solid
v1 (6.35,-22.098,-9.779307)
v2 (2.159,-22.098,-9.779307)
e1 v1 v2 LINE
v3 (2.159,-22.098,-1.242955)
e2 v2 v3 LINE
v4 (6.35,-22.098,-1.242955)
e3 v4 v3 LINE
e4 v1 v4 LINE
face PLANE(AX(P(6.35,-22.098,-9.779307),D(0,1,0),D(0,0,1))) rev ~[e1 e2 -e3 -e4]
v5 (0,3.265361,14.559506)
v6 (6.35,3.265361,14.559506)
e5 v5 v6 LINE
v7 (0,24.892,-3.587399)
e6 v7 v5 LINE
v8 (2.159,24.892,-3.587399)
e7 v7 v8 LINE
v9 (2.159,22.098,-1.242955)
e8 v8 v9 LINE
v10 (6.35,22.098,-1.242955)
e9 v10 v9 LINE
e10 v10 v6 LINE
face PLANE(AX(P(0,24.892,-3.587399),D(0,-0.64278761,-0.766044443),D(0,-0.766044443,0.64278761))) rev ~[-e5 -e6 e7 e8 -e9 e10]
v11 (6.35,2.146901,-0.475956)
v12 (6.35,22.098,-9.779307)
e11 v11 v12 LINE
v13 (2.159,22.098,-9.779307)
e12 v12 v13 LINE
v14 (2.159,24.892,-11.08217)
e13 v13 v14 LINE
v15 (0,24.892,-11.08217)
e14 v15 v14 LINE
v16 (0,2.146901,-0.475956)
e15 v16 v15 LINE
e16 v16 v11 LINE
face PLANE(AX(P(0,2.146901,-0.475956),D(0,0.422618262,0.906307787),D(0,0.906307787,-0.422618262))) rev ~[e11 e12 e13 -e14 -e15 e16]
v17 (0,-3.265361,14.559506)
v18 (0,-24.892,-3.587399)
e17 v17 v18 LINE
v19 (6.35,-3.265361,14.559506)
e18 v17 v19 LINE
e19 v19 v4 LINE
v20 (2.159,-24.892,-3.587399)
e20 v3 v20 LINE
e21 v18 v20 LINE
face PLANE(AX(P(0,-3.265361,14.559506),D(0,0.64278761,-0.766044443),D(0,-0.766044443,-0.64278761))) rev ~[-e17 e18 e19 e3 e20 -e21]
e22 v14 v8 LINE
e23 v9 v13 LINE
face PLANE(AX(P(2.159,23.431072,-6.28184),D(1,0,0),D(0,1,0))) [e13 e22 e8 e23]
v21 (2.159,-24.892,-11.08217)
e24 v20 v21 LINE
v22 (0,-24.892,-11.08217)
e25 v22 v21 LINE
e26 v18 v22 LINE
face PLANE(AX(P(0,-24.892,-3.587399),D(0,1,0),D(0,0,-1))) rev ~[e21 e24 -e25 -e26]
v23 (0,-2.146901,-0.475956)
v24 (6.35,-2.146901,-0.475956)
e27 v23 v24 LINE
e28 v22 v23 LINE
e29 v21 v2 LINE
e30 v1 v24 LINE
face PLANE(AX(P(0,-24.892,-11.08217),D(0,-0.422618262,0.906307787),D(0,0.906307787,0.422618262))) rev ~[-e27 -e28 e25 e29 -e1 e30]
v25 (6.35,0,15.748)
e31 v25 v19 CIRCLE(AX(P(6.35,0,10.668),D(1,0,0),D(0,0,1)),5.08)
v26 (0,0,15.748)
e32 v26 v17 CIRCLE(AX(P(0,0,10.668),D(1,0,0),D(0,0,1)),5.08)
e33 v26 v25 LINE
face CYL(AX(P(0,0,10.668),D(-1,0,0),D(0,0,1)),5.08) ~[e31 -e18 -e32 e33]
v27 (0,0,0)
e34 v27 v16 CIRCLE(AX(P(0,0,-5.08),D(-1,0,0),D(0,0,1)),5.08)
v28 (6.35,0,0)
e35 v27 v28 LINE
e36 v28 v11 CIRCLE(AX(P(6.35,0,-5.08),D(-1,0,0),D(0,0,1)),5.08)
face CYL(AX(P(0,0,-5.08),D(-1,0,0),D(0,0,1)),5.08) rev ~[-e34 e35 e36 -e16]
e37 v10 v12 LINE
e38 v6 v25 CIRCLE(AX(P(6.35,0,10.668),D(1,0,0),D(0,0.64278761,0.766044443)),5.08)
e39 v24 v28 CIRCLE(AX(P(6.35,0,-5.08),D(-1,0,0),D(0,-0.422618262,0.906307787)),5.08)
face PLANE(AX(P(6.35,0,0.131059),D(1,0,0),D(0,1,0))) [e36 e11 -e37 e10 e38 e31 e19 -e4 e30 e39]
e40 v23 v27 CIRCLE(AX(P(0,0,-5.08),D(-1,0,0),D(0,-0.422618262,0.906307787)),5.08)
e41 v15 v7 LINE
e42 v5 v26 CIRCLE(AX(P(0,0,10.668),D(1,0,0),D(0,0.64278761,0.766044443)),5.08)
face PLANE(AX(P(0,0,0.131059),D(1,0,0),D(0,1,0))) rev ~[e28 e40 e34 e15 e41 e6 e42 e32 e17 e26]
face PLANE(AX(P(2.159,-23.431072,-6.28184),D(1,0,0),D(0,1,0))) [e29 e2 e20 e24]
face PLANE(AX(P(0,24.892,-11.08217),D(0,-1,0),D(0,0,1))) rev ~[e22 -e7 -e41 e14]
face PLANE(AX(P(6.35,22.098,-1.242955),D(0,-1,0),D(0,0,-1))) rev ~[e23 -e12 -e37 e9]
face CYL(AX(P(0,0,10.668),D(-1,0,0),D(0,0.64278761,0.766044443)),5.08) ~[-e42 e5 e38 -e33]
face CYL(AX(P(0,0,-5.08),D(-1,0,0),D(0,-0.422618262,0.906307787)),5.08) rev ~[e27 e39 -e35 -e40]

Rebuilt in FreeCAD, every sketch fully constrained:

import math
import FreeCAD as App
import Part
import Sketcher
Q = App.Units.Quantity

doc = App.newDocument("Part")
body = doc.addObject("PartDesign::Body", "Body")

sketch1 = body.newObject("Sketcher::SketchObject", "Sketch")
sketch1.AttachmentSupport = (doc.getObject("YZ_Plane"), [""])
sketch1.MapMode = "FlatFace"
sketch1.addGeometry([
    Part.LineSegment(App.Vector(24.9, -3.6, 0), App.Vector(3.3, 14.6, 0)),
    Part.ArcOfCircle(Part.Circle(App.Vector(0, 10.7, 0), App.Vector(0, 0, 1), 5.1), math.radians(50), math.radians(90)),
    Part.ArcOfCircle(Part.Circle(App.Vector(0, 10.7, 0), App.Vector(0, 0, 1), 5.1), math.radians(90), math.radians(130)),
    Part.LineSegment(App.Vector(-3.3, 14.6, 0), App.Vector(-24.9, -3.6, 0)),
    Part.LineSegment(App.Vector(-24.9, -3.6, 0), App.Vector(-24.9, -11.1, 0)),
    Part.LineSegment(App.Vector(-24.9, -11.1, 0), App.Vector(-2.1, -0.5, 0)),
    Part.ArcOfCircle(Part.Circle(App.Vector(0, -5.1, 0), App.Vector(0, 0, 1), 5.1), math.radians(90), math.radians(115)),
    Part.ArcOfCircle(Part.Circle(App.Vector(0, -5.1, 0), App.Vector(0, 0, 1), 5.1), math.radians(65), math.radians(90)),
    Part.LineSegment(App.Vector(2.1, -0.5, 0), App.Vector(24.9, -11.1, 0)),
    Part.LineSegment(App.Vector(24.9, -11.1, 0), App.Vector(24.9, -3.6, 0)),
], False)
sketch1.addConstraint([
    Sketcher.Constraint("Tangent", 0, 2, 1, 1),
    Sketcher.Constraint("Tangent", 1, 2, 2, 1),
    Sketcher.Constraint("Tangent", 2, 2, 3, 1),
    Sketcher.Constraint("Coincident", 3, 2, 4, 1),
    Sketcher.Constraint("Coincident", 4, 2, 5, 1),
    Sketcher.Constraint("Tangent", 5, 2, 6, 2),
    Sketcher.Constraint("Tangent", 6, 1, 7, 2),
    Sketcher.Constraint("Tangent", 7, 1, 8, 1),
    Sketcher.Constraint("Coincident", 8, 2, 9, 1),
    Sketcher.Constraint("Coincident", 9, 2, 0, 1),
    Sketcher.Constraint("Vertical", 4),
    Sketcher.Constraint("Vertical", 9),
    Sketcher.Constraint("Coincident", 6, 1, -1, 1),
    Sketcher.Constraint("Equal", 1, 2),
    Sketcher.Constraint("Equal", 2, 6),
    Sketcher.Constraint("Equal", 6, 7),
    Sketcher.Constraint("Symmetric", 0, 2, 2, 2, -2),
    Sketcher.Constraint("Symmetric", 5, 2, 7, 1, -2),
    Sketcher.Constraint("PointOnObject", 1, 2, -2),
    Sketcher.Constraint("Horizontal", 4, 2, 8, 2),
    Sketcher.Constraint("Radius", 1, Q("0.2 in")),
    Sketcher.Constraint("Angle", 0, Q("140 deg")),
    Sketcher.Constraint("Angle", 5, Q("25 deg")),
    Sketcher.Constraint("DistanceY", -1, 1, 1, 3, Q("0.42 in")),
    Sketcher.Constraint("DistanceX", 3, 2, -1, 1, Q("0.98 in")),
])
pad1 = body.newObject("PartDesign::Pad", "Pad")
pad1.Profile = sketch1
pad1.Length = Q("0.25 in")

sketch2 = body.newObject("Sketcher::SketchObject", "Sketch001")
sketch2.AttachmentSupport = (doc.getObject("YZ_Plane"), [""])
sketch2.MapMode = "FlatFace"
sketch2.AttachmentOffset = App.Placement(App.Vector(0, 0, 0.25 * 25.4), App.Rotation())
sketch2.addGeometry([
    Part.LineSegment(App.Vector(22.1, -9.8, 0), App.Vector(24.9, -11.1, 0)),
    Part.LineSegment(App.Vector(24.9, -11.1, 0), App.Vector(24.9, -3.6, 0)),
    Part.LineSegment(App.Vector(24.9, -3.6, 0), App.Vector(22.1, -1.2, 0)),
    Part.LineSegment(App.Vector(22.1, -1.2, 0), App.Vector(22.1, -9.8, 0)),
    Part.LineSegment(App.Vector(-22.1, -9.8, 0), App.Vector(-22.1, -1.2, 0)),
    Part.LineSegment(App.Vector(-22.1, -1.2, 0), App.Vector(-24.9, -3.6, 0)),
    Part.LineSegment(App.Vector(-24.9, -3.6, 0), App.Vector(-24.9, -11.1, 0)),
    Part.LineSegment(App.Vector(-24.9, -11.1, 0), App.Vector(-22.1, -9.8, 0)),
], False)
sketch2.addConstraint([
    Sketcher.Constraint("Coincident", 0, 2, 1, 1),
    Sketcher.Constraint("Coincident", 1, 2, 2, 1),
    Sketcher.Constraint("Coincident", 2, 2, 3, 1),
    Sketcher.Constraint("Coincident", 3, 2, 0, 1),
    Sketcher.Constraint("Coincident", 4, 2, 5, 1),
    Sketcher.Constraint("Coincident", 5, 2, 6, 1),
    Sketcher.Constraint("Coincident", 6, 2, 7, 1),
    Sketcher.Constraint("Coincident", 7, 2, 4, 1),
    Sketcher.Constraint("Vertical", 1),
    Sketcher.Constraint("Vertical", 3),
    Sketcher.Constraint("Vertical", 4),
    Sketcher.Constraint("Vertical", 6),
    Sketcher.Constraint("Symmetric", 2, 2, 4, 2, -2),
    Sketcher.Constraint("Symmetric", 1, 2, 5, 2, -2),
    Sketcher.Constraint("Horizontal", 0, 2, 6, 2),
    Sketcher.Constraint("Horizontal", 3, 2, 7, 2),
    Sketcher.Constraint("Angle", 0, Q("-25 deg")),
    Sketcher.Constraint("Angle", 2, Q("140 deg")),
    Sketcher.Constraint("DistanceX", -1, 1, 0, 2, Q("0.98 in")),
    Sketcher.Constraint("DistanceX", -1, 1, 2, 2, Q("0.87 in")),
    Sketcher.Constraint("DistanceY", 1, 1, 1, 2, Q("7.494771 mm")),
    Sketcher.Constraint("DistanceY", 1, 2, -1, 1, Q("3.587399 mm")),
])
pocket1 = body.newObject("PartDesign::Pocket", "Pocket")
pocket1.Profile = sketch2
pocket1.Length = Q("0.165 in")

doc.recompute()
